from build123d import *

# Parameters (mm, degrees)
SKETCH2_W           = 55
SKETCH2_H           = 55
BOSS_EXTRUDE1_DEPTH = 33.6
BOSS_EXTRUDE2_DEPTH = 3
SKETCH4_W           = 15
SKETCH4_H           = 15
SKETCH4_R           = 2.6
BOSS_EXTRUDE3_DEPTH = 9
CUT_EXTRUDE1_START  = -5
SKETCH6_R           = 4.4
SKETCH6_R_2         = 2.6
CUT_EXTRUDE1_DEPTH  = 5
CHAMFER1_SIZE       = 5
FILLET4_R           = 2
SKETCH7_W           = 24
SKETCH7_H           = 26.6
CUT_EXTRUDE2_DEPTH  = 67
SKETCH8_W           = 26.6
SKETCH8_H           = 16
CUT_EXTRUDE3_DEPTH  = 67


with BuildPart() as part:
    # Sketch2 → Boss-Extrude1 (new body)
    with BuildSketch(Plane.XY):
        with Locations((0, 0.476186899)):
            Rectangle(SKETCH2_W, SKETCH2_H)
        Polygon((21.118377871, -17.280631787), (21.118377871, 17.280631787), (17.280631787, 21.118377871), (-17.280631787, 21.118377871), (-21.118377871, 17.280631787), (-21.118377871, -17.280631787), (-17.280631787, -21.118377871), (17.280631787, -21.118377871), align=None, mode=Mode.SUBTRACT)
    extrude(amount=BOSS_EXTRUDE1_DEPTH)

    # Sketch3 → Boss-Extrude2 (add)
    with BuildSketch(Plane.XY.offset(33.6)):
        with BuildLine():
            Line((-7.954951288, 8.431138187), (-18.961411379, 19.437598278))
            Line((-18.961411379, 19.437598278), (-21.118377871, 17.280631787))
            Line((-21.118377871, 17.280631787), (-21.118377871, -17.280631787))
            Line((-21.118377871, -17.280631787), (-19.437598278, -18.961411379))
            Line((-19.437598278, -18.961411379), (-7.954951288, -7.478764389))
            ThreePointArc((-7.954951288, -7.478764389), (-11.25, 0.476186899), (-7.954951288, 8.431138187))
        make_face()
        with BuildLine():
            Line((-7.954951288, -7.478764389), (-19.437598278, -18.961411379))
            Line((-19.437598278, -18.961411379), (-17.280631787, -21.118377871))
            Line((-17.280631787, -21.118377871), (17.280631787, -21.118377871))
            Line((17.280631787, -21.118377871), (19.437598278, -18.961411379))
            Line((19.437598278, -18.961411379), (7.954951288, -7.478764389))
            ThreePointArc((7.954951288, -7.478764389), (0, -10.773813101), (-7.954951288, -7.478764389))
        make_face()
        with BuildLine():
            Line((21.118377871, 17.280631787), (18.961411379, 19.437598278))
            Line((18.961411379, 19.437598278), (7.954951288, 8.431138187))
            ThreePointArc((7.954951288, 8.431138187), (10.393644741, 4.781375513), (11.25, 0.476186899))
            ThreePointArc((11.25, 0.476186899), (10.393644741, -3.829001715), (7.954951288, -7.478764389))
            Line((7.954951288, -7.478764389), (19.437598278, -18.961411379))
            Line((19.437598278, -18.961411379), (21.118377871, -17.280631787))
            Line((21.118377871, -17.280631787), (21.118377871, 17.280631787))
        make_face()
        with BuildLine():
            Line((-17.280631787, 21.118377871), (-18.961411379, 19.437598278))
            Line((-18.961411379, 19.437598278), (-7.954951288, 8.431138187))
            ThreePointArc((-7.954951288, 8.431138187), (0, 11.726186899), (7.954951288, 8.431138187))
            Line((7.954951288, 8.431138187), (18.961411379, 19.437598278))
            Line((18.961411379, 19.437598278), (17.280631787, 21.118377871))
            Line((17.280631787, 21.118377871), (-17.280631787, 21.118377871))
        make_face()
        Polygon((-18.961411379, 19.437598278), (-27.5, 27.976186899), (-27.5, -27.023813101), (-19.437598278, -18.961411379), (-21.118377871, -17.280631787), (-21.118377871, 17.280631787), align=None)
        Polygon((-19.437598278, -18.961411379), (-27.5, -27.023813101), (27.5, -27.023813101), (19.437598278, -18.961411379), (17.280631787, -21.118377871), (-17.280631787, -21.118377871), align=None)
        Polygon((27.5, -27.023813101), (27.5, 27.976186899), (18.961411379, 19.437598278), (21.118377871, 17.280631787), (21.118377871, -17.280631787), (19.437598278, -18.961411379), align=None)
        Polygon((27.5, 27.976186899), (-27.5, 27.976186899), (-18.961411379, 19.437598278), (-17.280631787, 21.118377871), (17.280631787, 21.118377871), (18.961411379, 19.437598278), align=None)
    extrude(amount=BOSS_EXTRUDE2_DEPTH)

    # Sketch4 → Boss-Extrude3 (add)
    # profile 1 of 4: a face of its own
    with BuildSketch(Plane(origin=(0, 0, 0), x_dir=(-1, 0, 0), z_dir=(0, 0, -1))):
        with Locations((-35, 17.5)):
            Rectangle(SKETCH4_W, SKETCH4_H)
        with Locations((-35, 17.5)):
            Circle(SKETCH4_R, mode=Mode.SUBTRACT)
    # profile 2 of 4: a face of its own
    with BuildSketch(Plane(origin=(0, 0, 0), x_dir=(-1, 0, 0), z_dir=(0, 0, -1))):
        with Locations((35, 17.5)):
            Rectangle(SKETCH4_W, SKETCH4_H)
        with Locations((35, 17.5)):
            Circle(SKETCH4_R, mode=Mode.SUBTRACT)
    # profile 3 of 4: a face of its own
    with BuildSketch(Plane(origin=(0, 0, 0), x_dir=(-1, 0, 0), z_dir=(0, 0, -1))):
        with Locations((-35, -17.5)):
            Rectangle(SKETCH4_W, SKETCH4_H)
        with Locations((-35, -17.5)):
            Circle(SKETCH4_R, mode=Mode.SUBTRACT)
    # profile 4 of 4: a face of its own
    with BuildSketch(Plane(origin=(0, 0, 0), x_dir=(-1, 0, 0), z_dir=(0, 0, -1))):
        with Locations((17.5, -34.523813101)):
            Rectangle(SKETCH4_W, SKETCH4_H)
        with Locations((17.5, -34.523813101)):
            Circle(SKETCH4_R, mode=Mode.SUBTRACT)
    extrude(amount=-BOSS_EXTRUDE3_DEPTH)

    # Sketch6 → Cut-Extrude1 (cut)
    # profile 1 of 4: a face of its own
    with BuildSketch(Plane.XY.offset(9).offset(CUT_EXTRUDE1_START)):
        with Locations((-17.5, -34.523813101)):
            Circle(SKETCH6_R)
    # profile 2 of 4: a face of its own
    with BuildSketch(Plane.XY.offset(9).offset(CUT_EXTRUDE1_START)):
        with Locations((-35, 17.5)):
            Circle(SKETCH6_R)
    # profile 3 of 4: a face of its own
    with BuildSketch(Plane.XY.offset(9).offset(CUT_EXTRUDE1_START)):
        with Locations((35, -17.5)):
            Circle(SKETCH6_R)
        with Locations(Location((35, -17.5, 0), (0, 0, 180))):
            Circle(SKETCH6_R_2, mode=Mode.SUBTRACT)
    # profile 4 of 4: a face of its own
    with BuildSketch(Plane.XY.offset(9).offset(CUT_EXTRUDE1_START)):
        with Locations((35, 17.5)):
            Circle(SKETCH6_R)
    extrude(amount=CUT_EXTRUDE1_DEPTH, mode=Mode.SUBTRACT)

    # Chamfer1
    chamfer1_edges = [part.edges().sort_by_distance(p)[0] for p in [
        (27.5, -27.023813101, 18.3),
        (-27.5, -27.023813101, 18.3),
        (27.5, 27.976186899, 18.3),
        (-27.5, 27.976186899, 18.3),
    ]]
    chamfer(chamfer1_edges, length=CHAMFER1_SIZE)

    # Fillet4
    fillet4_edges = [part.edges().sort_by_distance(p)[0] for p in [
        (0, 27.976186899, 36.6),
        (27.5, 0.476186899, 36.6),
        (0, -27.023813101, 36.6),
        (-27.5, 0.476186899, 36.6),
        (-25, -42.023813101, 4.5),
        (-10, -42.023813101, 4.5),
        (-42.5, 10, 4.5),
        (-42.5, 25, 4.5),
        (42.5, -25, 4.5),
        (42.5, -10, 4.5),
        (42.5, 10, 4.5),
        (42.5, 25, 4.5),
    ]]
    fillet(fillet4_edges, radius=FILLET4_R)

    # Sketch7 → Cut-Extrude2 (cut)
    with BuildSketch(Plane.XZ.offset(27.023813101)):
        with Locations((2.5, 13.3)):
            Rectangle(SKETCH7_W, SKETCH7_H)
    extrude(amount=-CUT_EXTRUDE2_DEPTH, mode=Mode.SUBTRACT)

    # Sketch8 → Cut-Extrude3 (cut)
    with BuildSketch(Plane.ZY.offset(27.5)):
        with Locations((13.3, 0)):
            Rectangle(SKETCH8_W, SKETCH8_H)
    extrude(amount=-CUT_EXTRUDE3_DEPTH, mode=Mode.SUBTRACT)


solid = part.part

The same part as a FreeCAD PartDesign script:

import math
import FreeCAD as App
import Part
import Sketcher
Q = App.Units.Quantity


def edges_at(feature, points):
    """Names of the edges that pass closest to the given points."""
    edges = feature.Shape.Edges
    near = lambda p: min(range(len(edges)), key=lambda i: edges[i].distToShape(Part.Vertex(*p))[0])
    return sorted({f"Edge{near(p) + 1}" for p in points})

doc = App.newDocument("Part")
body = doc.addObject("PartDesign::Body", "Body")

sketch1 = body.newObject("Sketcher::SketchObject", "Sketch")
sketch1.AttachmentSupport = (doc.getObject("XY_Plane"), [""])
sketch1.MapMode = "FlatFace"
sketch1.addGeometry([
    Part.LineSegment(App.Vector(-28, 28, 0), App.Vector(-28, -27, 0)),
    Part.LineSegment(App.Vector(-28, -27, 0), App.Vector(28, -27, 0)),
    Part.LineSegment(App.Vector(28, -27, 0), App.Vector(28, 28, 0)),
    Part.LineSegment(App.Vector(28, 28, 0), App.Vector(-28, 28, 0)),
    Part.LineSegment(App.Vector(21, 17, 0), App.Vector(21, -17, 0)),
    Part.LineSegment(App.Vector(21, -17, 0), App.Vector(17, -21, 0)),
    Part.LineSegment(App.Vector(17, -21, 0), App.Vector(-17, -21, 0)),
    Part.LineSegment(App.Vector(-17, -21, 0), App.Vector(-21, -17, 0)),
    Part.LineSegment(App.Vector(-21, -17, 0), App.Vector(-21, 17, 0)),
    Part.LineSegment(App.Vector(-21, 17, 0), App.Vector(-17, 21, 0)),
    Part.LineSegment(App.Vector(-17, 21, 0), App.Vector(17, 21, 0)),
    Part.LineSegment(App.Vector(17, 21, 0), App.Vector(21, 17, 0)),
], False)
sketch1.addConstraint([
    Sketcher.Constraint("Coincident", 0, 2, 1, 1),
    Sketcher.Constraint("Coincident", 1, 2, 2, 1),
    Sketcher.Constraint("Coincident", 2, 2, 3, 1),
    Sketcher.Constraint("Coincident", 3, 2, 0, 1),
    Sketcher.Constraint("Coincident", 4, 2, 5, 1),
    Sketcher.Constraint("Coincident", 5, 2, 6, 1),
    Sketcher.Constraint("Coincident", 6, 2, 7, 1),
    Sketcher.Constraint("Coincident", 7, 2, 8, 1),
    Sketcher.Constraint("Coincident", 8, 2, 9, 1),
    Sketcher.Constraint("Coincident", 9, 2, 10, 1),
    Sketcher.Constraint("Coincident", 10, 2, 11, 1),
    Sketcher.Constraint("Coincident", 11, 2, 4, 1),
    Sketcher.Constraint("Vertical", 0),
    Sketcher.Constraint("Horizontal", 1),
    Sketcher.Constraint("Vertical", 2),
    Sketcher.Constraint("Horizontal", 3),
    Sketcher.Constraint("Vertical", 4),
    Sketcher.Constraint("Horizontal", 6),
    Sketcher.Constraint("Vertical", 8),
    Sketcher.Constraint("Horizontal", 10),
    Sketcher.Constraint("Symmetric", 4, 2, 8, 2, -1, 1),
    Sketcher.Constraint("Symmetric", 5, 2, 9, 2, -1, 1),
    Sketcher.Constraint("Perpendicular", 5, 7),
    Sketcher.Constraint("Perpendicular", 9, 11),
    Sketcher.Constraint("Horizontal", 4, 2, 7, 2),
    Sketcher.Constraint("Horizontal", 8, 2, 11, 2),
    Sketcher.Constraint("Vertical", 6, 2, 9, 2),
    Sketcher.Constraint("Equal", 3, 0),
    Sketcher.Constraint("Equal", 10, 4),
    Sketcher.Constraint("DistanceX", 1, 1, 1, 2, Q("55 mm")),
    Sketcher.Constraint("DistanceX", 0, 2, -1, 1, Q("27.5 mm")),
    Sketcher.Constraint("DistanceX", 6, 2, 6, 1, Q("34.561264 mm")),
    Sketcher.Constraint("DistanceY", 1, 2, 4, 2, Q("9.743181 mm")),
    Sketcher.Constraint("DistanceX", 6, 2, 4, 2, Q("38.39901 mm")),
])
pad1 = body.newObject("PartDesign::Pad", "Pad")
pad1.Profile = sketch1
pad1.Length = 33.6

sketch2 = body.newObject("Sketcher::SketchObject", "Sketch001")
sketch2.AttachmentSupport = (doc.getObject("XY_Plane"), [""])
sketch2.MapMode = "FlatFace"
sketch2.AttachmentOffset = App.Placement(App.Vector(0, 0, 33.6), App.Rotation())
sketch2.addGeometry([
    Part.LineSegment(App.Vector(-28, 28, 0), App.Vector(-28, -27, 0)),
    Part.LineSegment(App.Vector(-28, -27, 0), App.Vector(28, -27, 0)),
    Part.LineSegment(App.Vector(28, -27, 0), App.Vector(28, 28, 0)),
    Part.LineSegment(App.Vector(28, 28, 0), App.Vector(-28, 28, 0)),
    Part.ArcOfCircle(Part.Circle(App.Vector(0, 0, 0), App.Vector(0, 0, 1), 11), math.radians(0), math.radians(45)),
    Part.ArcOfCircle(Part.Circle(App.Vector(0, 0, 0), App.Vector(0, 0, 1), 11), math.radians(-45), math.radians(0)),
    Part.ArcOfCircle(Part.Circle(App.Vector(0, 0, 0), App.Vector(0, 0, 1), 11), math.radians(-135), math.radians(-45)),
    Part.ArcOfCircle(Part.Circle(App.Vector(0, 0, 0), App.Vector(0, 0, 1), 11), math.radians(135), math.radians(225)),
    Part.ArcOfCircle(Part.Circle(App.Vector(0, 0, 0), App.Vector(0, 0, 1), 11), math.radians(45), math.radians(135)),
], False)
sketch2.addConstraint([
    Sketcher.Constraint("Coincident", 0, 2, 1, 1),
    Sketcher.Constraint("Coincident", 1, 2, 2, 1),
    Sketcher.Constraint("Coincident", 2, 2, 3, 1),
    Sketcher.Constraint("Coincident", 3, 2, 0, 1),
    Sketcher.Constraint("Tangent", 4, 1, 5, 2),
    Sketcher.Constraint("Tangent", 5, 1, 6, 2),
    Sketcher.Constraint("Tangent", 6, 1, 7, 2),
    Sketcher.Constraint("Tangent", 7, 1, 8, 2),
    Sketcher.Constraint("Tangent", 8, 1, 4, 2),
    Sketcher.Constraint("Vertical", 0),
    Sketcher.Constraint("Horizontal", 1),
    Sketcher.Constraint("Vertical", 2),
    Sketcher.Constraint("Horizontal", 3),
    Sketcher.Constraint("Coincident", 6, 3, 4, 3),
    Sketcher.Constraint("Symmetric", 5, 1, 6, 1, -2),
    Sketcher.Constraint("Horizontal", 8, 3, 4, 1),
    Sketcher.Constraint("Horizontal", 7, 1, 8, 1),
    Sketcher.Constraint("Vertical", 6, 1, 7, 1),
    Sketcher.Constraint("Equal", 3, 0),
    Sketcher.Constraint("DistanceX", 1, 1, 1, 2, Q("55 mm")),
    Sketcher.Constraint("Radius", 4, Q("11.25 mm")),
    Sketcher.Constraint("DistanceX", 0, 2, -1, 1, Q("27.5 mm")),
    Sketcher.Constraint("DistanceY", 0, 2, 6, 3, Q("27.5 mm")),
    Sketcher.Constraint("DistanceX", -1, 1, 5, 1, Q("7.954951 mm")),
    Sketcher.Constraint("DistanceY", -1, 1, 7, 1, Q("8.431138 mm")),
])
pad2 = body.newObject("PartDesign::Pad", "Pad001")
pad2.Profile = sketch2
pad2.Length = 3

sketch3 = body.newObject("Sketcher::SketchObject", "Sketch002")
sketch3.AttachmentSupport = (doc.getObject("XY_Plane"), [""])
sketch3.MapMode = "FlatFace"
sketch3.addGeometry([
    Part.LineSegment(App.Vector(42.5, 25, 0), App.Vector(42.5, 10, 0)),
    Part.LineSegment(App.Vector(42.5, 10, 0), App.Vector(27.5, 10, 0)),
    Part.LineSegment(App.Vector(27.5, 10, 0), App.Vector(27.5, 25, 0)),
    Part.LineSegment(App.Vector(27.5, 25, 0), App.Vector(42.5, 25, 0)),
    Part.Circle(App.Vector(35, 17.5, 0), App.Vector(0, 0, 1), 2.6),
    Part.LineSegment(App.Vector(-27.5, 25, 0), App.Vector(-27.5, 10, 0)),
    Part.LineSegment(App.Vector(-27.5, 10, 0), App.Vector(-42.5, 10, 0)),
    Part.LineSegment(App.Vector(-42.5, 10, 0), App.Vector(-42.5, 25, 0)),
    Part.LineSegment(App.Vector(-42.5, 25, 0), App.Vector(-27.5, 25, 0)),
    Part.Circle(App.Vector(-35, 17.5, 0), App.Vector(0, 0, 1), 2.6),
    Part.LineSegment(App.Vector(42.5, -10, 0), App.Vector(42.5, -25, 0)),
    Part.LineSegment(App.Vector(42.5, -25, 0), App.Vector(27.5, -25, 0)),
    Part.LineSegment(App.Vector(27.5, -25, 0), App.Vector(27.5, -10, 0)),
    Part.LineSegment(App.Vector(27.5, -10, 0), App.Vector(42.5, -10, 0)),
    Part.Circle(App.Vector(35, -17.5, 0), App.Vector(0, 0, 1), 2.6),
    Part.LineSegment(App.Vector(-10, -27, 0), App.Vector(-10, -42, 0)),
    Part.LineSegment(App.Vector(-10, -42, 0), App.Vector(-25, -42, 0)),
    Part.LineSegment(App.Vector(-25, -42, 0), App.Vector(-25, -27, 0)),
    Part.LineSegment(App.Vector(-25, -27, 0), App.Vector(-10, -27, 0)),
    Part.Circle(App.Vector(-17.5, -34.5, 0), App.Vector(0, 0, 1), 2.6),
], False)
sketch3.addConstraint([
    Sketcher.Constraint("Coincident", 0, 2, 1, 1),
    Sketcher.Constraint("Coincident", 1, 2, 2, 1),
    Sketcher.Constraint("Coincident", 2, 2, 3, 1),
    Sketcher.Constraint("Coincident", 3, 2, 0, 1),
    Sketcher.Constraint("Coincident", 5, 2, 6, 1),
    Sketcher.Constraint("Coincident", 6, 2, 7, 1),
    Sketcher.Constraint("Coincident", 7, 2, 8, 1),
    Sketcher.Constraint("Coincident", 8, 2, 5, 1),
    Sketcher.Constraint("Coincident", 10, 2, 11, 1),
    Sketcher.Constraint("Coincident", 11, 2, 12, 1),
    Sketcher.Constraint("Coincident", 12, 2, 13, 1),
    Sketcher.Constraint("Coincident", 13, 2, 10, 1),
    Sketcher.Constraint("Coincident", 15, 2, 16, 1),
    Sketcher.Constraint("Coincident", 16, 2, 17, 1),
    Sketcher.Constraint("Coincident", 17, 2, 18, 1),
    Sketcher.Constraint("Coincident", 18, 2, 15, 1),
    Sketcher.Constraint("Vertical", 0),
    Sketcher.Constraint("Horizontal", 1),
    Sketcher.Constraint("Vertical", 2),
    Sketcher.Constraint("Horizontal", 3),
    Sketcher.Constraint("Vertical", 5),
    Sketcher.Constraint("Horizontal", 6),
    Sketcher.Constraint("Vertical", 7),
    Sketcher.Constraint("Horizontal", 8),
    Sketcher.Constraint("Vertical", 10),
    Sketcher.Constraint("Horizontal", 11),
    Sketcher.Constraint("Vertical", 12),
    Sketcher.Constraint("Horizontal", 13),
    Sketcher.Constraint("Vertical", 15),
    Sketcher.Constraint("Horizontal", 16),
    Sketcher.Constraint("Vertical", 17),
    Sketcher.Constraint("Horizontal", 18),
    Sketcher.Constraint("Equal", 4, 9),
    Sketcher.Constraint("Equal", 9, 14),
    Sketcher.Constraint("Equal", 14, 19),
    Sketcher.Constraint("Symmetric", 9, 3, 14, 3, -1, 1),
    Sketcher.Constraint("Symmetric", 7, 2, 10, 2, -1, 1),
    Sketcher.Constraint("Symmetric", 5, 2, 12, 2, -1, 1),
    Sketcher.Constraint("Symmetric", 4, 3, 9, 3, -2),
    Sketcher.Constraint("Symmetric", 1, 2, 5, 2, -2),
    Sketcher.Constraint("Symmetric", 3, 2, 7, 2, -2),
    Sketcher.Constraint("Equal", 13, 16),
    Sketcher.Constraint("Equal", 18, 0),
    Sketcher.Constraint("Equal", 12, 15),
    Sketcher.Constraint("Diameter", 4, Q("5.2 mm")),
    Sketcher.Constraint("DistanceX", 1, 2, 1, 1, Q("15 mm")),
    Sketcher.Constraint("DistanceX", -1, 1, 4, 3, Q("35 mm")),
    Sketcher.Constraint("DistanceY", -1, 1, 0, 2, Q("10 mm")),
    Sketcher.Constraint("DistanceX", 15, 2, -1, 1, Q("10 mm")),
    Sketcher.Constraint("DistanceY", 14, 3, 4, 3, Q("35 mm")),
    Sketcher.Constraint("DistanceX", 19, 3, 0, 2, Q("60 mm")),
    Sketcher.Constraint("DistanceX", 5, 2, 19, 3, Q("10 mm")),
    Sketcher.Constraint("DistanceY", 15, 2, 19, 3, Q("7.5 mm")),
    Sketcher.Constraint("DistanceY", 19, 3, -1, 1, Q("34.523813 mm")),
])
pad3 = body.newObject("PartDesign::Pad", "Pad002")
pad3.Profile = sketch3
pad3.Length = 9

sketch4 = body.newObject("Sketcher::SketchObject", "Sketch003")
sketch4.AttachmentSupport = (doc.getObject("XY_Plane"), [""])
sketch4.MapMode = "FlatFace"
sketch4.AttachmentOffset = App.Placement(App.Vector(0, 0, 4), App.Rotation())
sketch4.addGeometry([
    Part.Circle(App.Vector(-17.5, -34.5, 0), App.Vector(0, 0, 1), 4.4),
    Part.Circle(App.Vector(-35, 17.5, 0), App.Vector(0, 0, 1), 4.4),
    Part.Circle(App.Vector(35, -17.5, 0), App.Vector(0, 0, 1), 4.4),
    Part.Circle(App.Vector(35, -17.5, 0), App.Vector(0, 0, 1), 2.6),
    Part.Circle(App.Vector(35, 17.5, 0), App.Vector(0, 0, 1), 4.4),
], False)
sketch4.addConstraint([
    Sketcher.Constraint("Coincident", 3, 3, 2, 3),
    Sketcher.Constraint("Equal", 0, 1),
    Sketcher.Constraint("Equal", 1, 2),
    Sketcher.Constraint("Equal", 2, 4),
    Sketcher.Constraint("Symmetric", 1, 3, 2, 3, -1, 1),
    Sketcher.Constraint("Symmetric", 1, 3, 4, 3, -2),
    Sketcher.Constraint("Diameter", 0, Q("8.8 mm")),
    Sketcher.Constraint("Diameter", 3, Q("5.2 mm")),
    Sketcher.Constraint("DistanceX", 1, 3, -1, 1, Q("35 mm")),
    Sketcher.Constraint("DistanceY", 2, 3, 1, 3, Q("35 mm")),
    Sketcher.Constraint("DistanceX", 0, 3, -1, 1, Q("17.5 mm")),
    Sketcher.Constraint("DistanceY", 0, 3, -1, 1, Q("34.523813 mm")),
])
pocket1 = body.newObject("PartDesign::Pocket", "Pocket")
pocket1.Profile = sketch4
pocket1.Length = 5
pocket1.Reversed = True
doc.recompute()

chamfer = body.newObject("PartDesign::Chamfer", "Chamfer")
chamfer.Base = (pocket1, edges_at(pocket1, [
    (27.5, -27.024, 18.3),
    (-27.5, -27.024, 18.3),
    (27.5, 27.976, 18.3),
    (-27.5, 27.976, 18.3),
]))
chamfer.Size = 5
doc.recompute()

fillet = body.newObject("PartDesign::Fillet", "Fillet")
fillet.Base = (chamfer, edges_at(chamfer, [
    (0, 27.976, 36.6),
    (27.5, 0.476, 36.6),
    (0, -27.024, 36.6),
    (-27.5, 0.476, 36.6),
    (-25, -42.024, 4.5),
    (-10, -42.024, 4.5),
    (-42.5, 10, 4.5),
    (-42.5, 25, 4.5),
    (42.5, -25, 4.5),
    (42.5, -10, 4.5),
    (42.5, 10, 4.5),
    (42.5, 25, 4.5),
]))
fillet.Radius = 2

sketch5 = body.newObject("Sketcher::SketchObject", "Sketch004")
sketch5.AttachmentSupport = (doc.getObject("XZ_Plane"), [""])
sketch5.MapMode = "FlatFace"
sketch5.AttachmentOffset = App.Placement(App.Vector(0, 0, 27.023813), App.Rotation())
sketch5.addGeometry([
    Part.LineSegment(App.Vector(-10, 27, 0), App.Vector(-10, 0, 0)),
    Part.LineSegment(App.Vector(-10, 0, 0), App.Vector(14, 0, 0)),
    Part.LineSegment(App.Vector(14, 0, 0), App.Vector(14, 27, 0)),
    Part.LineSegment(App.Vector(14, 27, 0), App.Vector(-10, 27, 0)),
], False)
sketch5.addConstraint([
    Sketcher.Constraint("Coincident", 0, 2, 1, 1),
    Sketcher.Constraint("Coincident", 1, 2, 2, 1),
    Sketcher.Constraint("Coincident", 2, 2, 3, 1),
    Sketcher.Constraint("Coincident", 3, 2, 0, 1),
    Sketcher.Constraint("Vertical", 0),
    Sketcher.Constraint("Horizontal", 1),
    Sketcher.Constraint("Vertical", 2),
    Sketcher.Constraint("Horizontal", 3),
    Sketcher.Constraint("PointOnObject", 0, 2, -1),
    Sketcher.Constraint("DistanceX", 1, 1, 1, 2, Q("24 mm")),
    Sketcher.Constraint("DistanceY", 0, 2, 0, 1, Q("26.6 mm")),
    Sketcher.Constraint("DistanceX", 0, 2, -1, 1, Q("9.5 mm")),
])
pocket2 = body.newObject("PartDesign::Pocket", "Pocket001")
pocket2.Profile = sketch5
pocket2.Length = 67

sketch6 = body.newObject("Sketcher::SketchObject", "Sketch005")
sketch6.AttachmentSupport = (doc.getObject("YZ_Plane"), [""])
sketch6.MapMode = "FlatFace"
sketch6.AttachmentOffset = App.Placement(App.Vector(0, 0, -27.5), App.Rotation())
sketch6.addGeometry([
    Part.LineSegment(App.Vector(8, 0, 0), App.Vector(-8, 0, 0)),
    Part.LineSegment(App.Vector(-8, 0, 0), App.Vector(-8, 27, 0)),
    Part.LineSegment(App.Vector(-8, 27, 0), App.Vector(8, 27, 0)),
    Part.LineSegment(App.Vector(8, 27, 0), App.Vector(8, 0, 0)),
], False)
sketch6.addConstraint([
    Sketcher.Constraint("Coincident", 0, 2, 1, 1),
    Sketcher.Constraint("Coincident", 1, 2, 2, 1),
    Sketcher.Constraint("Coincident", 2, 2, 3, 1),
    Sketcher.Constraint("Coincident", 3, 2, 0, 1),
    Sketcher.Constraint("Horizontal", 0),
    Sketcher.Constraint("Vertical", 1),
    Sketcher.Constraint("Horizontal", 2),
    Sketcher.Constraint("Vertical", 3),
    Sketcher.Constraint("Symmetric", 0, 2, 3, 2, -1, 1),
    Sketcher.Constraint("DistanceX", 0, 2, 0, 1, Q("16 mm")),
    Sketcher.Constraint("DistanceY", 1, 1, 1, 2, Q("26.6 mm")),
])
pocket3 = body.newObject("PartDesign::Pocket", "Pocket002")
pocket3.Profile = sketch6
pocket3.Length = 67
pocket3.Reversed = True

doc.recompute()
